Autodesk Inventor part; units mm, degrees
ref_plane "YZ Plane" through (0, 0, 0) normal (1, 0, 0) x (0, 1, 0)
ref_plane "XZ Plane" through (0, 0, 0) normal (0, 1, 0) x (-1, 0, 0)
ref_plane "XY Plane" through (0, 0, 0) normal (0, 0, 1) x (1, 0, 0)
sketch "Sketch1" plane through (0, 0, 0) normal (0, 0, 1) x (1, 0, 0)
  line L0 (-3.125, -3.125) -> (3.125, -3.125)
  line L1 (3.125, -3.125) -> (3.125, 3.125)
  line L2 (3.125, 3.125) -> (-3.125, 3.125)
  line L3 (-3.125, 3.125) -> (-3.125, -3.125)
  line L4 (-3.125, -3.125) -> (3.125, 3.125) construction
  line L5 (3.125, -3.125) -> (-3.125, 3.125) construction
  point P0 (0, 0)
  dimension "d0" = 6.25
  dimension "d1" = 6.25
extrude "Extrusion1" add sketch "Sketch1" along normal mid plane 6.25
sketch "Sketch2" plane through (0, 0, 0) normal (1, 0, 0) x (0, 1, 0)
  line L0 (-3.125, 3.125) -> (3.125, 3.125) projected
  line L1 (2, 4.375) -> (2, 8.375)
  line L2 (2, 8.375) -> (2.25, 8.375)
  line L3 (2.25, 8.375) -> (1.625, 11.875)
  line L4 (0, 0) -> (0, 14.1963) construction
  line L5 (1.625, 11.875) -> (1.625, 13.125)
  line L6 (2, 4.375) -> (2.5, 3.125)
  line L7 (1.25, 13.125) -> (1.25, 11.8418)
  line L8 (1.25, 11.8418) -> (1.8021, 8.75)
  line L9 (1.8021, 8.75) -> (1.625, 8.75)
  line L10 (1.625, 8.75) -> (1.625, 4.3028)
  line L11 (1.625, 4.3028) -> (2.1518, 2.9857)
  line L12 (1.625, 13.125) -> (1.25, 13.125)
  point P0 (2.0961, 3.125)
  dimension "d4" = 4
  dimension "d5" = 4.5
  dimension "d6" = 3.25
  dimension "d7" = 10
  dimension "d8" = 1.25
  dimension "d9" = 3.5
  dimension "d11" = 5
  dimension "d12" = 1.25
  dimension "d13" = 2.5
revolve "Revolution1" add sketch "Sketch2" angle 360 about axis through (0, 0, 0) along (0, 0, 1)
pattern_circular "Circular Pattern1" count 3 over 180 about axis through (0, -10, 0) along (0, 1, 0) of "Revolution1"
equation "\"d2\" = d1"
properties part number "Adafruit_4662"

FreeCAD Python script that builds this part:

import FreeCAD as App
import Part
import Sketcher
Q = App.Units.Quantity

doc = App.newDocument("Part")
body = doc.addObject("PartDesign::Body", "Body")

# Sketch on XY plane
sketch1 = doc.addObject("Sketcher::SketchObject", "Sketch")
body.addObject(sketch1)
sketch1.AttachmentSupport = (doc.XY_Plane, [""])
sketch1.MapMode = "FlatFace"
sketch1.addGeometry([
    Part.LineSegment(App.Vector(-3, 3, 0), App.Vector(-3, -3, 0)),
    Part.LineSegment(App.Vector(-3, -3, 0), App.Vector(3, -3, 0)),
    Part.LineSegment(App.Vector(3, -3, 0), App.Vector(3, 3, 0)),
    Part.LineSegment(App.Vector(3, 3, 0), App.Vector(-3, 3, 0)),
], False)
sketch1.addConstraint([
    Sketcher.Constraint("Coincident", 0, 2, 1, 1),
    Sketcher.Constraint("Coincident", 1, 2, 2, 1),
    Sketcher.Constraint("Coincident", 2, 2, 3, 1),
    Sketcher.Constraint("Coincident", 3, 2, 0, 1),
    Sketcher.Constraint("Vertical", 0),
    Sketcher.Constraint("Horizontal", 1),
    Sketcher.Constraint("Vertical", 2),
    Sketcher.Constraint("Horizontal", 3),
    Sketcher.Constraint("Symmetric", 0, 2, 2, 2, -1, 1),
    Sketcher.Constraint("Equal", 3, 0),
    Sketcher.Constraint("DistanceX", 1, 1, 1, 2, Q("6.25 mm")),
])
pad1 = doc.addObject("PartDesign::Pad", "Pad")
body.addObject(pad1)
pad1.Profile = sketch1
pad1.Length = 6.25
pad1.Midplane = True

# Sketch on YZ plane
sketch2 = doc.addObject("Sketcher::SketchObject", "Sketch001")
body.addObject(sketch2)
sketch2.AttachmentSupport = (doc.YZ_Plane, [""])
sketch2.MapMode = "FlatFace"
sketch2.addGeometry([
    Part.LineSegment(App.Vector(1.62, 4.3, 0), App.Vector(2.1, 3.12, 0)),  # 0
    Part.LineSegment(App.Vector(2.1, 3.12, 0), App.Vector(2.5, 3.12, 0)),  # 1
    Part.LineSegment(App.Vector(2.5, 3.12, 0), App.Vector(2, 4.38, 0)),  # 2
    Part.LineSegment(App.Vector(2, 4.38, 0), App.Vector(2, 8.38, 0)),  # 3
    Part.LineSegment(App.Vector(2, 8.38, 0), App.Vector(2.25, 8.38, 0)),  # 4
    Part.LineSegment(App.Vector(2.25, 8.38, 0), App.Vector(1.62, 11.88, 0)),  # 5
    Part.LineSegment(App.Vector(1.62, 11.88, 0), App.Vector(1.62, 13.12, 0)),  # 6
    Part.LineSegment(App.Vector(1.62, 13.12, 0), App.Vector(1.25, 13.12, 0)),  # 7
    Part.LineSegment(App.Vector(1.25, 13.12, 0), App.Vector(1.25, 11.84, 0)),  # 8
    Part.LineSegment(App.Vector(1.25, 11.84, 0), App.Vector(1.8, 8.75, 0)),  # 9
    Part.LineSegment(App.Vector(1.8, 8.75, 0), App.Vector(1.62, 8.75, 0)),  # 10
    Part.LineSegment(App.Vector(1.62, 8.75, 0), App.Vector(1.62, 4.3, 0)),  # 11
], False)
sketch2.addConstraint([
    Sketcher.Constraint("Coincident", 0, 2, 1, 1),
    Sketcher.Constraint("Coincident", 1, 2, 2, 1),
    Sketcher.Constraint("Coincident", 2, 2, 3, 1),
    Sketcher.Constraint("Coincident", 3, 2, 4, 1),
    Sketcher.Constraint("Coincident", 4, 2, 5, 1),
    Sketcher.Constraint("Coincident", 5, 2, 6, 1),
    Sketcher.Constraint("Coincident", 6, 2, 7, 1),
    Sketcher.Constraint("Coincident", 7, 2, 8, 1),
    Sketcher.Constraint("Coincident", 8, 2, 9, 1),
    Sketcher.Constraint("Coincident", 9, 2, 10, 1),
    Sketcher.Constraint("Coincident", 10, 2, 11, 1),
    Sketcher.Constraint("Coincident", 11, 2, 0, 1),
    Sketcher.Constraint("Horizontal", 1),
    Sketcher.Constraint("Vertical", 3),
    Sketcher.Constraint("Horizontal", 4),
    Sketcher.Constraint("Vertical", 6),
    Sketcher.Constraint("Horizontal", 7),
    Sketcher.Constraint("Vertical", 8),
    Sketcher.Constraint("Horizontal", 10),
    Sketcher.Constraint("Vertical", 11),
    Sketcher.Constraint("Parallel", 0, 2),
    Sketcher.Constraint("Parallel", 5, 9),
    Sketcher.Constraint("Vertical", 6, 2, 10, 2),
    Sketcher.Constraint("DistanceY", 3, 1, 3, 2, Q("4 mm")),
    Sketcher.Constraint("DistanceY", 0, 2, 6, 2, Q("10 mm")),
    Sketcher.Constraint("DistanceY", 6, 1, 6, 2, Q("1.25 mm")),
    Sketcher.Constraint("DistanceX", -1, 1, 1, 2, Q("2.5 mm")),
    Sketcher.Constraint("DistanceY", 3, 2, 5, 2, Q("3.5 mm")),
    Sketcher.Constraint("DistanceX", -1, 1, 7, 2, Q("1.25 mm")),
    Sketcher.Constraint("DistanceX", -1, 1, 2, 2, Q("2 mm")),
    Sketcher.Constraint("DistanceX", 7, 2, 4, 2, Q("1 mm")),
    Sketcher.Constraint("DistanceX", 1, 1, 1, 2, Q("0.404 mm")),
    Sketcher.Constraint("DistanceX", 7, 2, 7, 1, Q("0.375 mm")),
    Sketcher.Constraint("DistanceX", 10, 2, 10, 1, Q("0.177 mm")),
    Sketcher.Constraint("DistanceY", -1, 1, 9, 2, Q("8.75 mm")),
    Sketcher.Constraint("DistanceY", 8, 2, 8, 1, Q("1.2832 mm")),
])
revolution = doc.addObject("PartDesign::Revolution", "Revolution")
body.addObject(revolution)
revolution.Profile = sketch2
revolution.ReferenceAxis = (sketch2, ["V_Axis"])
revolution.Angle = 360
doc.recompute()

polarpattern = doc.addObject("PartDesign::PolarPattern", "PolarPattern")
body.addObject(polarpattern)
polarpattern.Originals = [revolution]
polarpattern.Axis = (doc.Y_Axis, [""])
polarpattern.Angle = 180
polarpattern.Occurrences = 3
body.Tip = polarpattern

doc.recompute()
